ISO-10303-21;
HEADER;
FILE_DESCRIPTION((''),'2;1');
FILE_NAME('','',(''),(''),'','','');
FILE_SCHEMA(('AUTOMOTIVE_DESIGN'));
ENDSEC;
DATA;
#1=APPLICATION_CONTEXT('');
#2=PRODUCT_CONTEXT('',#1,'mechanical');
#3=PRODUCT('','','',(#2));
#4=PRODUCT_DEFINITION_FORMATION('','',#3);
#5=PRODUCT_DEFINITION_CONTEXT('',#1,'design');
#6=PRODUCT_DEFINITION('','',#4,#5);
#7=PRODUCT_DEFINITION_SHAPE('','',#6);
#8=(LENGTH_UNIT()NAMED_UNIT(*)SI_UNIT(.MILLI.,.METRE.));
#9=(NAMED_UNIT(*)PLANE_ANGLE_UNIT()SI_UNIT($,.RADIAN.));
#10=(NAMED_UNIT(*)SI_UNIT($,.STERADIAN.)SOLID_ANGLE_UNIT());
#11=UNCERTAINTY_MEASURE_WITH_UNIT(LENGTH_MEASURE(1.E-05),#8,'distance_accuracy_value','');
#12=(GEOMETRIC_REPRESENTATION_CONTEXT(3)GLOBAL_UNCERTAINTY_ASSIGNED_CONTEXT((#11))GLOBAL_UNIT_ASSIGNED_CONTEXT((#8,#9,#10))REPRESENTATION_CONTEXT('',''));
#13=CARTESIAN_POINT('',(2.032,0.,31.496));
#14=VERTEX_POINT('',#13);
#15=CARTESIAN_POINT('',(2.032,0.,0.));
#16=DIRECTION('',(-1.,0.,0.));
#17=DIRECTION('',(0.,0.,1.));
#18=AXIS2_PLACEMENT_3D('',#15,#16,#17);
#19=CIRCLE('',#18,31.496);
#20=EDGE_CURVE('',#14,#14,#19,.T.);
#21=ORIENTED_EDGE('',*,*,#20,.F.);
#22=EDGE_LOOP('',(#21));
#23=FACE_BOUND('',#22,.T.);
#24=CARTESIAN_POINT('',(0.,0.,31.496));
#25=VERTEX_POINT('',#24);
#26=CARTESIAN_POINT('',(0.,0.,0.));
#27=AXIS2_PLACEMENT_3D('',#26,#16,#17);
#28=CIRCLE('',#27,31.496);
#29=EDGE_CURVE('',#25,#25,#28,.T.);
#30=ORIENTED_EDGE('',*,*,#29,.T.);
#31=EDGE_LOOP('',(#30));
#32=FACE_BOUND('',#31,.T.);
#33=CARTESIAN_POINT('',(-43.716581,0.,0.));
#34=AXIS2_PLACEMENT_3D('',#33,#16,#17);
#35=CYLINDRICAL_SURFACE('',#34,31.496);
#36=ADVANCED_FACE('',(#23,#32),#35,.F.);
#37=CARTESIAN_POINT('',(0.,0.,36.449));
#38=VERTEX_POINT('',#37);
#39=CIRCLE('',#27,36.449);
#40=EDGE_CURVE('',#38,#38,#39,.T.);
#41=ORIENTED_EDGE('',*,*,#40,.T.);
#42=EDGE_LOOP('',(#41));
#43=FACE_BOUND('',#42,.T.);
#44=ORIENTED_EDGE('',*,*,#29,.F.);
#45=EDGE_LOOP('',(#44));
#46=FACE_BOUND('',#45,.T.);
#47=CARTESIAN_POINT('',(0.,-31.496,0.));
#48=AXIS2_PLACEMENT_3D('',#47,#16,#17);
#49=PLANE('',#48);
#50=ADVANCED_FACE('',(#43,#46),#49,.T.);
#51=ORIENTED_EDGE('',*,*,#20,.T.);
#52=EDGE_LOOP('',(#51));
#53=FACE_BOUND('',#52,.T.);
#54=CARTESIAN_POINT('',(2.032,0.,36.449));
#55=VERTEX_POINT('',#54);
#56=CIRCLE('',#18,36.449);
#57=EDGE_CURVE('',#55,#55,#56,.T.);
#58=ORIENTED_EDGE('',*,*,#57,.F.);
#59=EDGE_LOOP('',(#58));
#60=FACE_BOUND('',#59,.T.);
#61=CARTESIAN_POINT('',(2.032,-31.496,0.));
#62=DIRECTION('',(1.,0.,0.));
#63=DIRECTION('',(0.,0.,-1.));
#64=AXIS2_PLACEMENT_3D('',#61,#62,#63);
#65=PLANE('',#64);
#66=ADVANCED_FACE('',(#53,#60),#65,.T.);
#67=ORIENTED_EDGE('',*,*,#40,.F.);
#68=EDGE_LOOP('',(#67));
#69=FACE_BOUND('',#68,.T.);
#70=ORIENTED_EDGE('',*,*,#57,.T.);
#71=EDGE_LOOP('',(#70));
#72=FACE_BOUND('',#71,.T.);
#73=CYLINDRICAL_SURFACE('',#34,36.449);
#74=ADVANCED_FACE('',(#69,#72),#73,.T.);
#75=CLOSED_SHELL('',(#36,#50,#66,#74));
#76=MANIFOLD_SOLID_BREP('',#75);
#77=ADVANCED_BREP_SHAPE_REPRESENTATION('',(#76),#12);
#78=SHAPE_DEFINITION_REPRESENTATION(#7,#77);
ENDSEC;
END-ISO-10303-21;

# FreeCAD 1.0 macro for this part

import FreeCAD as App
import Part
import Sketcher
from FreeCAD import Vector
Q = App.Units.Quantity

doc = App.newDocument("Part")
params = doc.addObject("Spreadsheet::Sheet", "Params")
for row, (alias, value) in enumerate([
    ("sketch1_width", "0.08 in"),
    ("sketch1_height", "0.195 in"),
    ("revolution_angle", "360 deg"),
], start=1):
    params.set(f"A{row}", alias)
    params.set(f"B{row}", "=" + value)
    params.setAlias(f"B{row}", alias)

body = doc.addObject("PartDesign::Body", "Body")

# Sketch on XY plane
sketch1 = body.newObject("Sketcher::SketchObject", "Sketch")
sketch1.AttachmentSupport = (doc.getObject("XY_Plane"), [""])
sketch1.MapMode = "FlatFace"
sketch1.addGeometry(Part.LineSegment(Vector(0, -31.5, 0), Vector(0, -36.4, 0)), False)
sketch1.addGeometry(Part.LineSegment(Vector(0, -36.4, 0), Vector(2, -36.4, 0)), False)
sketch1.addGeometry(Part.LineSegment(Vector(2, -36.4, 0), Vector(2, -31.5, 0)), False)
sketch1.addGeometry(Part.LineSegment(Vector(2, -31.5, 0), Vector(0, -31.5, 0)), False)
sketch1.addConstraint(Sketcher.Constraint("Coincident", 0, 2, 1, 1))
sketch1.addConstraint(Sketcher.Constraint("Coincident", 1, 2, 2, 1))
sketch1.addConstraint(Sketcher.Constraint("Coincident", 2, 2, 3, 1))
sketch1.addConstraint(Sketcher.Constraint("Coincident", 3, 2, 0, 1))
sketch1.addConstraint(Sketcher.Constraint("Vertical", 0))
sketch1.addConstraint(Sketcher.Constraint("Horizontal", 1))
sketch1.addConstraint(Sketcher.Constraint("Vertical", 2))
sketch1.addConstraint(Sketcher.Constraint("Horizontal", 3))
sketch1.addConstraint(Sketcher.Constraint("PointOnObject", 0, 2, -2))
sketch1.addConstraint(Sketcher.Constraint("DistanceX", 1, 1, 1, 2, Q("0.08 in")))
sketch1.addConstraint(Sketcher.Constraint("DistanceY", 0, 2, 0, 1, Q("0.195 in")))
sketch1.addConstraint(Sketcher.Constraint("DistanceY", 2, 2, -1, 1, Q("1.24 in")))
sketch1.setExpression("Constraints[9]", "Params.sketch1_width")
sketch1.setExpression("Constraints[10]", "Params.sketch1_height")
revolution = body.newObject("PartDesign::Revolution", "Revolution")
revolution.Profile = sketch1
revolution.ReferenceAxis = (sketch1, ["H_Axis"])
revolution.setExpression("Angle", "Params.revolution_angle")

doc.recompute()
